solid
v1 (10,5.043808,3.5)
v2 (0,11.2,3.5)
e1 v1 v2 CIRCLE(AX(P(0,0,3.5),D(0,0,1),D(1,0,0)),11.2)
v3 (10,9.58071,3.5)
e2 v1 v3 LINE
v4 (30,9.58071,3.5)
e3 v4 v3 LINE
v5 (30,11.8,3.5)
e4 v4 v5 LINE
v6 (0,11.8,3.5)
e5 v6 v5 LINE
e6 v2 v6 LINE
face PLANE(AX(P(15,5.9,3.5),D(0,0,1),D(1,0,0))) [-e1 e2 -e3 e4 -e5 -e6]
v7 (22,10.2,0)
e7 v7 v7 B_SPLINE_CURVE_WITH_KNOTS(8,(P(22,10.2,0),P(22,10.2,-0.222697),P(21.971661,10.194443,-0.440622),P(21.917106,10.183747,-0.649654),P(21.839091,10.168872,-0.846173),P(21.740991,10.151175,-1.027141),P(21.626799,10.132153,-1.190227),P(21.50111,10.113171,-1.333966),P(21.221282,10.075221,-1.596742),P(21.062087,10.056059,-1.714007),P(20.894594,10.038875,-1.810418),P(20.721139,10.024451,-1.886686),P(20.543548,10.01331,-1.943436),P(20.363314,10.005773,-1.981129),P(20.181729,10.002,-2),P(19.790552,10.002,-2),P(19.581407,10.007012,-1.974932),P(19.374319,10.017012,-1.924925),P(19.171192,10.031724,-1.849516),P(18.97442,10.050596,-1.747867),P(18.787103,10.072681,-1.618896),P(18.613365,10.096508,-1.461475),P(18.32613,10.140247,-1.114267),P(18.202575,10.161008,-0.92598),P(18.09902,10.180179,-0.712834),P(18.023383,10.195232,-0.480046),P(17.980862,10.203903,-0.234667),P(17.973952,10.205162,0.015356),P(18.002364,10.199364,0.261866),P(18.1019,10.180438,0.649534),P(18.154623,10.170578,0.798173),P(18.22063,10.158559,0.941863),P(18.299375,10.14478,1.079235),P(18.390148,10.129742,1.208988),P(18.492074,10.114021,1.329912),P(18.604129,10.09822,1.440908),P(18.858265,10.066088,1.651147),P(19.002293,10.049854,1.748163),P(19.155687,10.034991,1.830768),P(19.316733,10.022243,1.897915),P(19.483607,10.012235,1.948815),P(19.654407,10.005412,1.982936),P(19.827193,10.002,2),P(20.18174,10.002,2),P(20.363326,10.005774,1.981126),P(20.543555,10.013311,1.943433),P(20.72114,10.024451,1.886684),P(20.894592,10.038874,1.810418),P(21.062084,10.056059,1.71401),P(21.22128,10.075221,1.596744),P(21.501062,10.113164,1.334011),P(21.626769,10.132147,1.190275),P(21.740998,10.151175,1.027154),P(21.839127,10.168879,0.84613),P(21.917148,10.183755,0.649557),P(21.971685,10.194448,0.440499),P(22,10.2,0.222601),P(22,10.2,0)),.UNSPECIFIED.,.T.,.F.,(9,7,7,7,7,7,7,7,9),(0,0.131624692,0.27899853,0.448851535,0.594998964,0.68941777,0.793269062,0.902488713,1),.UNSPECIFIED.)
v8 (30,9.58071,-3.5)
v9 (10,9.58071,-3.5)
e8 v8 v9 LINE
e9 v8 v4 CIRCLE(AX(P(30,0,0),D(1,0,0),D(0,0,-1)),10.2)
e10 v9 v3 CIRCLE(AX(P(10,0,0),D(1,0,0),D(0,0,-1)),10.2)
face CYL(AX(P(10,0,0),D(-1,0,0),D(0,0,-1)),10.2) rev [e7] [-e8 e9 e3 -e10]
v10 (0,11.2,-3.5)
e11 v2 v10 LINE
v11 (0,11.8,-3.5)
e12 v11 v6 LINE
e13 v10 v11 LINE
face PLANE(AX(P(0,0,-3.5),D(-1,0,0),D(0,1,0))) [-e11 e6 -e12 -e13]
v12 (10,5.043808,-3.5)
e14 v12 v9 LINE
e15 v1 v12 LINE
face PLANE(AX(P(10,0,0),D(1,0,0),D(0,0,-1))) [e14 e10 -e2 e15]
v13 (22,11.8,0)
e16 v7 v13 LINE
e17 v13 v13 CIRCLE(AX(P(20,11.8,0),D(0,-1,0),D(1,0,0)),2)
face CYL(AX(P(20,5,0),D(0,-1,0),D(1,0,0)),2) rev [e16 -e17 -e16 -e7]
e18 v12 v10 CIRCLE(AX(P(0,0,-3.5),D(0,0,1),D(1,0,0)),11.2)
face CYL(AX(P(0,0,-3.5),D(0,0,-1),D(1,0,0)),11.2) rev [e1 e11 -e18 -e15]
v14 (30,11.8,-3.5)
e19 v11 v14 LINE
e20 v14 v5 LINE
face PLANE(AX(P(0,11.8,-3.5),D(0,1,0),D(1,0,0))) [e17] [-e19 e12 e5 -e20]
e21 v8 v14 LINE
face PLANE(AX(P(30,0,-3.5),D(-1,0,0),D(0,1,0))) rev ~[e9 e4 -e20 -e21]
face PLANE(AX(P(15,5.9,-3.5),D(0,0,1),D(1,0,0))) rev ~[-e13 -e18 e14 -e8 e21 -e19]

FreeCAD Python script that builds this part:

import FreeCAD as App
import Part
import Sketcher
Q = App.Units.Quantity


def add_polygon(sketch, points):
    """Adds a closed chain of lines whose ends are joined by coincident constraints."""
    first, n = sketch.GeometryCount, len(points)
    for a, b in zip(points, points[1:] + points[:1]):
        sketch.addGeometry(Part.LineSegment(App.Vector(*a, 0), App.Vector(*b, 0)), False)
    for i in range(n):
        sketch.addConstraint(Sketcher.Constraint("Coincident", first + i, 2, first + (i + 1) % n, 1))

doc = App.newDocument("Part")
body = doc.addObject("PartDesign::Body", "Body")

sketch1 = body.newObject("Sketcher::SketchObject", "Sketch")
sketch1.AttachmentSupport = (doc.getObject("XY_Plane"), [""])
sketch1.MapMode = "FlatFace"
sketch1.AttachmentOffset = App.Placement(App.Vector(0, 0, -3.5), App.Rotation())
sketch1.addGeometry(Part.Circle(App.Vector(0, 0, 0), App.Vector(0, 0, 1), 11), False)
sketch1.addConstraint([
    Sketcher.Constraint("Coincident", 0, 3, -1, 1),
    Sketcher.Constraint("Diameter", 0, Q("22.4 mm")),
])
pad1 = body.newObject("PartDesign::Pad", "Pad")
pad1.Profile = sketch1
pad1.Length = 7
body2 = doc.addObject("PartDesign::Body", "Body001")

sketch2 = body2.newObject("Sketcher::SketchObject", "Sketch001")
sketch2.AttachmentSupport = (doc.getObject("XY_Plane001"), [""])
sketch2.MapMode = "FlatFace"
sketch2.addGeometry(Part.Circle(App.Vector(0, 0, 0), App.Vector(0, 0, 1), 2), False)
sketch2.addConstraint([
    Sketcher.Constraint("Coincident", 0, 3, -1, 1),
    Sketcher.Constraint("Diameter", 0, Q("4 mm")),
])
pad2 = body2.newObject("PartDesign::Pad", "Pad001")
pad2.Profile = sketch2
pad2.Length = 10
body3 = doc.addObject("PartDesign::Body", "Body002")
doc.recompute()

body2.Placement = App.Placement(App.Vector(0, 0, 0), App.Rotation(App.Vector(1, 0, 0), 270))
boolean = body3.newObject("PartDesign::Boolean", "Boolean")
boolean.Type = "Fuse"
boolean.addObjects([body2])
body4 = doc.addObject("PartDesign::Body", "Body003")
doc.recompute()

body3.Placement = App.Placement(App.Vector(20, 5, 0), App.Rotation(App.Vector(0, 0, 1), 0))
boolean2 = body4.newObject("PartDesign::Boolean", "Boolean001")
boolean2.Type = "Fuse"
boolean2.addObjects([body3])
body5 = doc.addObject("PartDesign::Body", "Body004")

sketch3 = body5.newObject("Sketcher::SketchObject", "Sketch002")
sketch3.AttachmentSupport = (doc.getObject("XY_Plane004"), [""])
sketch3.MapMode = "FlatFace"
sketch3.addGeometry(Part.Circle(App.Vector(0, 0, 0), App.Vector(0, 0, 1), 10), False)
sketch3.addConstraint([
    Sketcher.Constraint("Coincident", 0, 3, -1, 1),
    Sketcher.Constraint("Diameter", 0, Q("20.4 mm")),
])
pad3 = body5.newObject("PartDesign::Pad", "Pad002")
pad3.Profile = sketch3
pad3.Length = 20
body6 = doc.addObject("PartDesign::Body", "Body005")
doc.recompute()

body5.Placement = App.Placement(App.Vector(0, 0, 0), App.Rotation(App.Vector(0, 1, 0), 90))
boolean3 = body6.newObject("PartDesign::Boolean", "Boolean002")
boolean3.Type = "Fuse"
boolean3.addObjects([body5])
body7 = doc.addObject("PartDesign::Body", "Body006")
doc.recompute()

body6.Placement = App.Placement(App.Vector(10, 0, 0), App.Rotation(App.Vector(0, 0, 1), 0))
boolean4 = body7.newObject("PartDesign::Boolean", "Boolean003")
boolean4.Type = "Fuse"
boolean4.addObjects([body6])
doc.recompute()

boolean5 = body7.newObject("PartDesign::Boolean", "Boolean004")
boolean5.Type = "Fuse"
boolean5.addObjects([body])
doc.recompute()

boolean6 = body7.newObject("PartDesign::Boolean", "Boolean005")
boolean6.Type = "Fuse"
boolean6.addObjects([body4])
body8 = doc.addObject("PartDesign::Body", "Body007")

sketch4 = body8.newObject("Sketcher::SketchObject", "Sketch003")
sketch4.AttachmentSupport = (doc.getObject("XY_Plane007"), [""])
sketch4.MapMode = "FlatFace"
sketch4.AttachmentOffset = App.Placement(App.Vector(0, 0, -3.5), App.Rotation())
add_polygon(sketch4, [(0, 12), (0, 0), (30, 0), (30, 12)])
sketch4.addConstraint([
    Sketcher.Constraint("Vertical", 0),
    Sketcher.Constraint("Horizontal", 1),
    Sketcher.Constraint("Vertical", 2),
    Sketcher.Constraint("Horizontal", 3),
    Sketcher.Constraint("Coincident", 0, 2, -1, 1),
    Sketcher.Constraint("DistanceX", 1, 1, 1, 2, Q("30 mm")),
    Sketcher.Constraint("DistanceY", 0, 2, 0, 1, Q("11.8 mm")),
])
pad4 = body8.newObject("PartDesign::Pad", "Pad003")
pad4.Profile = sketch4
pad4.Length = 7
doc.recompute()

boolean7 = body8.newObject("PartDesign::Boolean", "Boolean006")
boolean7.Type = "Cut"
boolean7.addObjects([body7])

doc.recompute()
